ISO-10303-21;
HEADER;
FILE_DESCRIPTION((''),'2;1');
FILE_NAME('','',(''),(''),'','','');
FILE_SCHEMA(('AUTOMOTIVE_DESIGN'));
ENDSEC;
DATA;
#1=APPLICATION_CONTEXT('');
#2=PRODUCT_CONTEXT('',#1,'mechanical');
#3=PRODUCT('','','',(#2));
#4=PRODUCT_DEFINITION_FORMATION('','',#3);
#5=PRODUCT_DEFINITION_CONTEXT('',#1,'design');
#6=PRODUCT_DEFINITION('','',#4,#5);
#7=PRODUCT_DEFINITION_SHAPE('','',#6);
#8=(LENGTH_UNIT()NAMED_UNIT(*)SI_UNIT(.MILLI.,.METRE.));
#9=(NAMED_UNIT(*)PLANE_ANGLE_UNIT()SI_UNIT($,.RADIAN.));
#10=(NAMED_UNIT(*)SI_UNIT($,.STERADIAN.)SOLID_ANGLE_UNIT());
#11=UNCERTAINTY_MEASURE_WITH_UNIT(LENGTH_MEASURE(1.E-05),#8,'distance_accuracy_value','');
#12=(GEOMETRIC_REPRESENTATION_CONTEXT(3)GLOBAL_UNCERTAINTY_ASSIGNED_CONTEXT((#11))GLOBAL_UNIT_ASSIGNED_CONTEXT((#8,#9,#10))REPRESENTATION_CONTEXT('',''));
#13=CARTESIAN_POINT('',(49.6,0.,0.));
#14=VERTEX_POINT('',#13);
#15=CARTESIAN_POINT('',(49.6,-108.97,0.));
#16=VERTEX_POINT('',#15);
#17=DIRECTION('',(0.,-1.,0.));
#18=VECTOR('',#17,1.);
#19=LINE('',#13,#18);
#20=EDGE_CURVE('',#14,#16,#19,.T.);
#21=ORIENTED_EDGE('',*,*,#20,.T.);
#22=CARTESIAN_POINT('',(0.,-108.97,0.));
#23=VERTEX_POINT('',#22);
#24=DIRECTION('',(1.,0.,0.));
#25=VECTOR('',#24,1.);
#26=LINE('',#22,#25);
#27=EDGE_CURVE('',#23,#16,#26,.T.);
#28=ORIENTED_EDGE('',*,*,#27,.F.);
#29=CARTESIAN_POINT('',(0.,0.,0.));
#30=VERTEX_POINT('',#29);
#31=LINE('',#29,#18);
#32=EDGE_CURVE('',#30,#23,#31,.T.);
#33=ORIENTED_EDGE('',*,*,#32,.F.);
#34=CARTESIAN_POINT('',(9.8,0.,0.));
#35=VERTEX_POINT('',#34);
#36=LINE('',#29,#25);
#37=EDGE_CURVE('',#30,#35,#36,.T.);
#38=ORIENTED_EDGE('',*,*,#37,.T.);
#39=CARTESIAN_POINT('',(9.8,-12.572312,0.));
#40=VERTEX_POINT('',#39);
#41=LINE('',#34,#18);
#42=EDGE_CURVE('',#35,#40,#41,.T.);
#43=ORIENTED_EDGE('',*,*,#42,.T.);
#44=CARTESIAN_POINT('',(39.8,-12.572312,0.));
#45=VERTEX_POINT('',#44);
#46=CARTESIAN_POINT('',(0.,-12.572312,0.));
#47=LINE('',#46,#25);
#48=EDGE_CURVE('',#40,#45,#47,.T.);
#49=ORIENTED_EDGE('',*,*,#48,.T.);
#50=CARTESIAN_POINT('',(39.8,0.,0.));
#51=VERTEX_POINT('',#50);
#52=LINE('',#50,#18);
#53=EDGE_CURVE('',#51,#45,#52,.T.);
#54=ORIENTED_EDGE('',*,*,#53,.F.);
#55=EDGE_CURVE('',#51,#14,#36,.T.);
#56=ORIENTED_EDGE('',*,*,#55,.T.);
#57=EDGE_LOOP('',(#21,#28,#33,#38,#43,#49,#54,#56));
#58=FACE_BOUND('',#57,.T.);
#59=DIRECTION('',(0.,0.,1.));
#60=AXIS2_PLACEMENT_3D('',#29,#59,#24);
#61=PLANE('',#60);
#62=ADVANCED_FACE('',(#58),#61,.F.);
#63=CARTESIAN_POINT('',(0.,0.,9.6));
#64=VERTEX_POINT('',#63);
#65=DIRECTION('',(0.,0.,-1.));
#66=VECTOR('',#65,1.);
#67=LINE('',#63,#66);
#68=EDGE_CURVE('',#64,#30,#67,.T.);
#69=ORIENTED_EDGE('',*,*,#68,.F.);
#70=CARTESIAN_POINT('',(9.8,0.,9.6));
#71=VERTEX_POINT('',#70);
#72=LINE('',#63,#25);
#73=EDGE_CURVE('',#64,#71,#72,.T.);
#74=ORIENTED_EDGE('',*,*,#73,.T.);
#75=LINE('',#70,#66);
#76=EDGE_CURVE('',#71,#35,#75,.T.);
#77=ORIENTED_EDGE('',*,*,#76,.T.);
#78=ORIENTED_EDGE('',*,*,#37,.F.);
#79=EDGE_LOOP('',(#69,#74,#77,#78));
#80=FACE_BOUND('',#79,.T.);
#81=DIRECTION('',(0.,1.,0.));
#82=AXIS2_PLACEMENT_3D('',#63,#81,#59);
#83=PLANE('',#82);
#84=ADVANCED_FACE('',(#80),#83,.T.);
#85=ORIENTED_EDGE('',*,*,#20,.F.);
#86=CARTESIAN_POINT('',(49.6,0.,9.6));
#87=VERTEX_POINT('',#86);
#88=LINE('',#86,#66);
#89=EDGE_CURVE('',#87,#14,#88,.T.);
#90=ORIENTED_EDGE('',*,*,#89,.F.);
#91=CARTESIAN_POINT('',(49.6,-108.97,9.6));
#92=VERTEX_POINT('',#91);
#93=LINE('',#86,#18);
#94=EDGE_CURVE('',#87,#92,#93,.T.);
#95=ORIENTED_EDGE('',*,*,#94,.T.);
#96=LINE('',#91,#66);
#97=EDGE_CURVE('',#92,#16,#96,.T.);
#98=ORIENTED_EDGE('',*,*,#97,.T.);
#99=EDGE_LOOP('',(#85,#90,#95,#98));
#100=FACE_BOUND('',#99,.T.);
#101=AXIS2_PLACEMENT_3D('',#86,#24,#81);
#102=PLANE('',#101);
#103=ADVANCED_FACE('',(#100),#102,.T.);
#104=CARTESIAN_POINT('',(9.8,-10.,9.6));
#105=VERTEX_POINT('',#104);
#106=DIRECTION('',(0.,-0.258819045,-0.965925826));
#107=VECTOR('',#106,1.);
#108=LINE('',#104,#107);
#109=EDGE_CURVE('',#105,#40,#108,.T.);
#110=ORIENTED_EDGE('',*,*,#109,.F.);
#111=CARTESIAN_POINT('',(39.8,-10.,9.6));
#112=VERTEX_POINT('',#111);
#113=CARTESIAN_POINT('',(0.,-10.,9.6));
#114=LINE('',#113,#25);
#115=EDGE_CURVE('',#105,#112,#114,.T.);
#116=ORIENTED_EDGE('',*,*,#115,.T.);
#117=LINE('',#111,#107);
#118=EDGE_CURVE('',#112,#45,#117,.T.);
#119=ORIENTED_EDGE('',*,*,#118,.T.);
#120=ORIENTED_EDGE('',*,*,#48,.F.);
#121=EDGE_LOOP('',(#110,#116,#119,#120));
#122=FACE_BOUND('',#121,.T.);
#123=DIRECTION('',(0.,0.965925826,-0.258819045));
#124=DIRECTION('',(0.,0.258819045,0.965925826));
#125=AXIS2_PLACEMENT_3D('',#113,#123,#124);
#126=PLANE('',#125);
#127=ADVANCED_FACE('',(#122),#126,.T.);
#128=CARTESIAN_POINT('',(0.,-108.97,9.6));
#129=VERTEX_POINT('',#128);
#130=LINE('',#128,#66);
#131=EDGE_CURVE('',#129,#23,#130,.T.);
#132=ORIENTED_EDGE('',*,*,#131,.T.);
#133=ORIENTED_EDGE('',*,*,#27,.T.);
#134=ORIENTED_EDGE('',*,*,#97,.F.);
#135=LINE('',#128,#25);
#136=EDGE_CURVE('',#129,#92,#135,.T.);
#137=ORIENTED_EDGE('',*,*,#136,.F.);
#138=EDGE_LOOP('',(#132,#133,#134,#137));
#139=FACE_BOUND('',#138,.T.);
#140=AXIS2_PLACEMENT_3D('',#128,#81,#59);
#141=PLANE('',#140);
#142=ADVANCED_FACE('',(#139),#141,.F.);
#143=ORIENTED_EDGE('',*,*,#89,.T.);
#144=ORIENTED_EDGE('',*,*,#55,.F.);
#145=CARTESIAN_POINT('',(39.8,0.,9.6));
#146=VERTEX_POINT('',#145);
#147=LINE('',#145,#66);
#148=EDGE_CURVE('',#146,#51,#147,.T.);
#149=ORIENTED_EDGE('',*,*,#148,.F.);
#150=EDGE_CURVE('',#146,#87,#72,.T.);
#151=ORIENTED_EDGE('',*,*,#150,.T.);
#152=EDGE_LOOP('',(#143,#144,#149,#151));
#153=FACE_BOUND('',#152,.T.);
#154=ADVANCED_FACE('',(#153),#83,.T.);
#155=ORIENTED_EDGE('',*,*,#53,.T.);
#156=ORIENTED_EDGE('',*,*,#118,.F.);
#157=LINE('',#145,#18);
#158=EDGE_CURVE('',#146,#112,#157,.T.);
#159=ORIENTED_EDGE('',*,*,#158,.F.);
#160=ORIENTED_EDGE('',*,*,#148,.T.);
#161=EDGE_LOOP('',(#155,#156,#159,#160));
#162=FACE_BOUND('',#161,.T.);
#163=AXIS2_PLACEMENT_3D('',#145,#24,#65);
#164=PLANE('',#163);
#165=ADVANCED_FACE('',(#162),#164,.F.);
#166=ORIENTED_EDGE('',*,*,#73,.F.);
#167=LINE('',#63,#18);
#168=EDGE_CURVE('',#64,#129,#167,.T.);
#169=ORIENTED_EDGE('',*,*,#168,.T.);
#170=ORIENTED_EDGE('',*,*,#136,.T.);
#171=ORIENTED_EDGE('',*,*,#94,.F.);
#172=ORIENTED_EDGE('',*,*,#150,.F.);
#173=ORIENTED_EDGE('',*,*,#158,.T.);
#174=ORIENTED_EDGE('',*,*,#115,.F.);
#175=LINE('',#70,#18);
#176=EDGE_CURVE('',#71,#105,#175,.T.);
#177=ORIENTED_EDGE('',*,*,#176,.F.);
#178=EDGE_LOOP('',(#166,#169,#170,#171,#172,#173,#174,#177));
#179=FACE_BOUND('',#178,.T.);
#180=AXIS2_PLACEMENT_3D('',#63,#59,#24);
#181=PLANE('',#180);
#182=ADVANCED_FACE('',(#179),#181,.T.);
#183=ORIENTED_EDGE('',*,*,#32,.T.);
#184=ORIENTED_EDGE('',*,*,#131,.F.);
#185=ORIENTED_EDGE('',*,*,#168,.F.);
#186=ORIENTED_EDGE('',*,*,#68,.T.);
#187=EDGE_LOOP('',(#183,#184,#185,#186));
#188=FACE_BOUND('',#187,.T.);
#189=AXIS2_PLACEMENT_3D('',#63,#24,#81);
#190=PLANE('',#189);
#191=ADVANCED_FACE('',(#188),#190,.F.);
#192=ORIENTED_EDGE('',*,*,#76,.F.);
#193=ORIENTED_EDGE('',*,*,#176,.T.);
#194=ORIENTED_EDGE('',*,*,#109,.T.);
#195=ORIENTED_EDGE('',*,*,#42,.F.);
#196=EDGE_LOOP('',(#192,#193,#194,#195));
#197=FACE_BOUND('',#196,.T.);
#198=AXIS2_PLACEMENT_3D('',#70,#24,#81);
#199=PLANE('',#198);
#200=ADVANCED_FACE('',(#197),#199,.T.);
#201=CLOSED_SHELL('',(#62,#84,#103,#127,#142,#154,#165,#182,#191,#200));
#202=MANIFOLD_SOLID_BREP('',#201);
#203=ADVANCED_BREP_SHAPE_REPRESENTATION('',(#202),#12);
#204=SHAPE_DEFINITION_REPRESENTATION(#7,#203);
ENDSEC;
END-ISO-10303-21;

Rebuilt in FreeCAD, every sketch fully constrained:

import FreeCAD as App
import Part
import Sketcher


def faces_at(feature, points):
    """Names of the faces that lie closest to the given points."""
    faces = feature.Shape.Faces
    near = lambda p: min(range(len(faces)), key=lambda i: faces[i].distToShape(Part.Vertex(*p))[0])
    return sorted({f"Face{near(p) + 1}" for p in points})


def add_polygon(sketch, points):
    """Adds a closed chain of lines whose ends are joined by coincident constraints."""
    first, n = sketch.GeometryCount, len(points)
    for a, b in zip(points, points[1:] + points[:1]):
        sketch.addGeometry(Part.LineSegment(App.Vector(*a, 0), App.Vector(*b, 0)), False)
    for i in range(n):
        sketch.addConstraint(Sketcher.Constraint("Coincident", first + i, 2, first + (i + 1) % n, 1))

doc = App.newDocument("Part")
body = doc.addObject("PartDesign::Body", "Body")

sketch1 = doc.addObject("Sketcher::SketchObject", "Sketch")
body.addObject(sketch1)
sketch1.AttachmentSupport = (doc.XY_Plane, [""])
sketch1.MapMode = "FlatFace"
add_polygon(sketch1, [(10, 0), (0, 0), (0, -109), (50, -109), (50, 0), (40, 0), (40, -10), (10, -10)])
sketch1.addConstraint(Sketcher.Constraint("Horizontal", 0))
sketch1.addConstraint(Sketcher.Constraint("Vertical", 1))
sketch1.addConstraint(Sketcher.Constraint("Horizontal", 2))
sketch1.addConstraint(Sketcher.Constraint("Vertical", 3))
sketch1.addConstraint(Sketcher.Constraint("Horizontal", 4))
sketch1.addConstraint(Sketcher.Constraint("Vertical", 5))
sketch1.addConstraint(Sketcher.Constraint("Horizontal", 6))
sketch1.addConstraint(Sketcher.Constraint("Vertical", 7))
sketch1.addConstraint(Sketcher.Constraint("Coincident", 0, 2, -1, 1))
sketch1.addConstraint(Sketcher.Constraint("PointOnObject", 3, 2, -1))
sketch1.addConstraint(Sketcher.Constraint("Equal", 0, 4))
sketch1.addConstraint(Sketcher.Constraint("DistanceX", 6, 2, 6, 1, 30.0))
sketch1.addConstraint(Sketcher.Constraint("DistanceY", 5, 2, 5, 1, 10.0))
sketch1.addConstraint(Sketcher.Constraint("DistanceX", 0, 2, 0, 1, 9.8))
sketch1.addConstraint(Sketcher.Constraint("DistanceY", 1, 2, 1, 1, 108.97))
pad1 = doc.addObject("PartDesign::Pad", "Pad")
body.addObject(pad1)
pad1.Profile = sketch1
pad1.Length = 9.6
doc.recompute()

datumplane = doc.addObject("PartDesign::Plane", "DatumPlane")
body.addObject(datumplane)
datumplane.AttachmentSupport = (doc.XY_Plane, [""])
datumplane.MapMode = "FlatFace"
datumplane.AttachmentOffset = App.Placement(App.Vector(0, 0, 9.6), App.Rotation())
draft = doc.addObject("PartDesign::Draft", "Draft")
body.addObject(draft)
draft.Base = (pad1, faces_at(pad1, [(24.8, -10, 4.8)]))
draft.NeutralPlane = (datumplane, [""])
draft.Angle = 15
draft.Reversed = True

doc.recompute()
